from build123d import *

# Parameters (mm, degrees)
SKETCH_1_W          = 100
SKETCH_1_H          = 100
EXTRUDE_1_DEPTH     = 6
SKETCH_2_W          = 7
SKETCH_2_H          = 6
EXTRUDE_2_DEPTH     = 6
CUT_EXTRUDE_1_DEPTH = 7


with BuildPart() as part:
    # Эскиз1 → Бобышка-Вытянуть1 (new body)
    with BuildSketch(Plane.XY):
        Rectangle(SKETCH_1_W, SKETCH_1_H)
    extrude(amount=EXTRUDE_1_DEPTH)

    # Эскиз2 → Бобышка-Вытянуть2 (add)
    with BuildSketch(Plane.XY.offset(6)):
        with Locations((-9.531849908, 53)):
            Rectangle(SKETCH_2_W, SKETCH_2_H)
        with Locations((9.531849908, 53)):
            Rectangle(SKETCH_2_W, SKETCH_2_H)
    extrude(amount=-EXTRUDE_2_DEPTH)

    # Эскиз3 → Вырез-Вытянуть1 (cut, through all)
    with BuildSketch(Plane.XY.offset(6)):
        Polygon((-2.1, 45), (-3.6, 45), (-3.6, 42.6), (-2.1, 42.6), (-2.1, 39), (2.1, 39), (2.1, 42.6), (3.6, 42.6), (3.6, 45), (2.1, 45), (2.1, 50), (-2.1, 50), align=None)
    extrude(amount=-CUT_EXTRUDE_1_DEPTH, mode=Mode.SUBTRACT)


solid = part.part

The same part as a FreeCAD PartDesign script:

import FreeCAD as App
import Part
import Sketcher


def add_polygon(sketch, points):
    """Adds a closed chain of lines whose ends are joined by coincident constraints."""
    first, n = sketch.GeometryCount, len(points)
    for a, b in zip(points, points[1:] + points[:1]):
        sketch.addGeometry(Part.LineSegment(App.Vector(*a, 0), App.Vector(*b, 0)), False)
    for i in range(n):
        sketch.addConstraint(Sketcher.Constraint("Coincident", first + i, 2, first + (i + 1) % n, 1))

doc = App.newDocument("Part")
body = doc.addObject("PartDesign::Body", "Body")

# Sketch on XY plane
sketch1 = body.newObject("Sketcher::SketchObject", "Sketch")
sketch1.AttachmentSupport = (doc.getObject("XY_Plane"), [""])
sketch1.MapMode = "FlatFace"
add_polygon(sketch1, [(-50, 50), (-50, -50), (50, -50), (50, 50)])  # lines 0-3
sketch1.addConstraint(Sketcher.Constraint("Vertical", 0))
sketch1.addConstraint(Sketcher.Constraint("Horizontal", 1))
sketch1.addConstraint(Sketcher.Constraint("Vertical", 2))
sketch1.addConstraint(Sketcher.Constraint("Horizontal", 3))
sketch1.addConstraint(Sketcher.Constraint("Symmetric", 0, 2, 2, 2, -1, 1))
sketch1.addConstraint(Sketcher.Constraint("Equal", 3, 0))
sketch1.addConstraint(Sketcher.Constraint("DistanceX", 1, 1, 1, 2, 100.0))
pad1 = body.newObject("PartDesign::Pad", "Pad")
pad1.Profile = sketch1
pad1.Length = 6

# Sketch on XY plane
sketch2 = body.newObject("Sketcher::SketchObject", "Sketch001")
sketch2.AttachmentSupport = (doc.getObject("XY_Plane"), [""])
sketch2.MapMode = "FlatFace"
sketch2.AttachmentOffset = App.Placement(App.Vector(0, 0, 6), App.Rotation())
add_polygon(sketch2, [(-13, 56), (-13, 50), (-6, 50), (-6, 56)])  # lines 0-3
add_polygon(sketch2, [(6, 56), (6, 50), (13, 50), (13, 56)])  # lines 4-7
sketch2.addConstraint(Sketcher.Constraint("Vertical", 0))
sketch2.addConstraint(Sketcher.Constraint("Horizontal", 1))
sketch2.addConstraint(Sketcher.Constraint("Vertical", 2))
sketch2.addConstraint(Sketcher.Constraint("Horizontal", 3))
sketch2.addConstraint(Sketcher.Constraint("Vertical", 4))
sketch2.addConstraint(Sketcher.Constraint("Horizontal", 5))
sketch2.addConstraint(Sketcher.Constraint("Vertical", 6))
sketch2.addConstraint(Sketcher.Constraint("Horizontal", 7))
sketch2.addConstraint(Sketcher.Constraint("Symmetric", 1, 2, 4, 2, -2))
sketch2.addConstraint(Sketcher.Constraint("Symmetric", 3, 2, 6, 2, -2))
sketch2.addConstraint(Sketcher.Constraint("DistanceX", 1, 1, 1, 2, 7.0))
sketch2.addConstraint(Sketcher.Constraint("DistanceY", 0, 2, 0, 1, 6.0))
sketch2.addConstraint(Sketcher.Constraint("DistanceY", -1, 1, 0, 2, 50.0))
sketch2.addConstraint(Sketcher.Constraint("DistanceX", 1, 2, 4, 2, 12.0637))
pad2 = body.newObject("PartDesign::Pad", "Pad001")
pad2.Profile = sketch2
pad2.Length = 6
pad2.Reversed = True

# Sketch on XY plane
sketch3 = body.newObject("Sketcher::SketchObject", "Sketch002")
sketch3.AttachmentSupport = (doc.getObject("XY_Plane"), [""])
sketch3.MapMode = "FlatFace"
sketch3.AttachmentOffset = App.Placement(App.Vector(0, 0, 6), App.Rotation())
add_polygon(sketch3, [(-2.1, 45), (-3.6, 45), (-3.6, 42.6), (-2.1, 42.6), (-2.1, 39), (2.1, 39), (2.1, 42.6), (3.6, 42.6), (3.6, 45), (2.1, 45), (2.1, 50), (-2.1, 50)])  # lines 0-11
sketch3.addConstraint(Sketcher.Constraint("Horizontal", 0))
sketch3.addConstraint(Sketcher.Constraint("Vertical", 1))
sketch3.addConstraint(Sketcher.Constraint("Horizontal", 2))
sketch3.addConstraint(Sketcher.Constraint("Vertical", 3))
sketch3.addConstraint(Sketcher.Constraint("Horizontal", 4))
sketch3.addConstraint(Sketcher.Constraint("Vertical", 5))
sketch3.addConstraint(Sketcher.Constraint("Horizontal", 6))
sketch3.addConstraint(Sketcher.Constraint("Vertical", 7))
sketch3.addConstraint(Sketcher.Constraint("Horizontal", 8))
sketch3.addConstraint(Sketcher.Constraint("Vertical", 9))
sketch3.addConstraint(Sketcher.Constraint("Horizontal", 10))
sketch3.addConstraint(Sketcher.Constraint("Vertical", 11))
sketch3.addConstraint(Sketcher.Constraint("Symmetric", 2, 2, 5, 2, -2))
sketch3.addConstraint(Sketcher.Constraint("Symmetric", 0, 2, 7, 2, -2))
sketch3.addConstraint(Sketcher.Constraint("Vertical", 5, 2, 8, 2))
sketch3.addConstraint(Sketcher.Constraint("Vertical", 3, 2, 10, 2))
sketch3.addConstraint(Sketcher.Constraint("DistanceY", 9, 1, 9, 2, 5.0))
sketch3.addConstraint(Sketcher.Constraint("DistanceX", 0, 2, 0, 1, 1.5))
sketch3.addConstraint(Sketcher.Constraint("DistanceX", 4, 1, 4, 2, 4.2))
sketch3.addConstraint(Sketcher.Constraint("DistanceY", 1, 2, 1, 1, 2.4))
sketch3.addConstraint(Sketcher.Constraint("DistanceY", 3, 2, 3, 1, 3.6))
sketch3.addConstraint(Sketcher.Constraint("DistanceY", -1, 1, 0, 2, 45.0))
pocket1 = body.newObject("PartDesign::Pocket", "Pocket")
pocket1.Profile = sketch3
pocket1.Type = "ThroughAll"

doc.recompute()
